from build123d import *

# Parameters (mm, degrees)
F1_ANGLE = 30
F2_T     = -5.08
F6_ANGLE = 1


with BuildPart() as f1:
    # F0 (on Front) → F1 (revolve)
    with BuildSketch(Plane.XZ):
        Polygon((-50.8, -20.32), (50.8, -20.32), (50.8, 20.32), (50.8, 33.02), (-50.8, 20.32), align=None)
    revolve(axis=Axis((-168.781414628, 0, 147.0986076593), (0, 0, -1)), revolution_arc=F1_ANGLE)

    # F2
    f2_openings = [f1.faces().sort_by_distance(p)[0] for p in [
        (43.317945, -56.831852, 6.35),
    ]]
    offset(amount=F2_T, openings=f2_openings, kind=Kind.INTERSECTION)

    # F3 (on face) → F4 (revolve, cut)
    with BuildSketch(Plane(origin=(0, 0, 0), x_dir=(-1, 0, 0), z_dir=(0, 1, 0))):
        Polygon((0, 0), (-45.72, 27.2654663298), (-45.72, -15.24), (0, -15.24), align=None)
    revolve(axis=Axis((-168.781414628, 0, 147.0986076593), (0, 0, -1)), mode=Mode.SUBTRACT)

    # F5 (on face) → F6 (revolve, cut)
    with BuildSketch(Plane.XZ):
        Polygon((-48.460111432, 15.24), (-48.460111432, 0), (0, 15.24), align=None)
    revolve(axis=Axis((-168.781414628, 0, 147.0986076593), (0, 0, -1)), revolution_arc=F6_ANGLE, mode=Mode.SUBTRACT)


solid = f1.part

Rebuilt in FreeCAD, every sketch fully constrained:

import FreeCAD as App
import Part
import Sketcher
Q = App.Units.Quantity


def faces_at(feature, points):
    """Names of the faces that lie closest to the given points."""
    faces = feature.Shape.Faces
    near = lambda p: min(range(len(faces)), key=lambda i: faces[i].distToShape(Part.Vertex(*p))[0])
    return sorted({f"Face{near(p) + 1}" for p in points})


def add_polygon(sketch, points):
    """Adds a closed chain of lines whose ends are joined by coincident constraints."""
    first, n = sketch.GeometryCount, len(points)
    for a, b in zip(points, points[1:] + points[:1]):
        sketch.addGeometry(Part.LineSegment(App.Vector(*a, 0), App.Vector(*b, 0)), False)
    for i in range(n):
        sketch.addConstraint(Sketcher.Constraint("Coincident", first + i, 2, first + (i + 1) % n, 1))

doc = App.newDocument("Part")
body = doc.addObject("PartDesign::Body", "Body")

sketch1 = doc.addObject("Sketcher::SketchObject", "Sketch")
body.addObject(sketch1)
sketch1.AttachmentSupport = (doc.XZ_Plane, [""])
sketch1.MapMode = "FlatFace"
add_polygon(sketch1, [(-51, -20), (51, -20), (51, 33), (-51, 20)])
sketch1.addGeometry(Part.LineSegment(App.Vector(-169, 33, 0), App.Vector(-169, -20, 0)), True)
sketch1.addConstraint(Sketcher.Constraint("Horizontal", 0))
sketch1.addConstraint(Sketcher.Constraint("Vertical", 1))
sketch1.addConstraint(Sketcher.Constraint("Vertical", 3))
sketch1.addConstraint(Sketcher.Constraint("Vertical", 4))
sketch1.addConstraint(Sketcher.Constraint("Symmetric", 0, 2, 2, 2, -1, 1))
sketch1.addConstraint(Sketcher.Constraint("Horizontal", 1, 2, 4, 1))
sketch1.addConstraint(Sketcher.Constraint("Horizontal", 3, 2, 4, 2))
sketch1.addConstraint(Sketcher.Constraint("DistanceX", 0, 1, 0, 2, Q("4 in")))
sketch1.addConstraint(Sketcher.Constraint("DistanceY", 1, 1, 1, 2, Q("2.1 in")))
sketch1.addConstraint(Sketcher.Constraint("DistanceY", 3, 2, 3, 1, Q("1.6 in")))
sketch1.addConstraint(Sketcher.Constraint("DistanceX", 4, 1, -1, 1, Q("168.781415 mm")))
revolution = doc.addObject("PartDesign::Revolution", "Revolution")
body.addObject(revolution)
revolution.Profile = sketch1
revolution.ReferenceAxis = (sketch1, ["Axis0"])
revolution.Angle = 30
doc.recompute()

thickness = doc.addObject("PartDesign::Thickness", "Thickness")
body.addObject(thickness)
thickness.Base = (revolution, faces_at(revolution, [(43.318, -56.832, 6.35)]))
thickness.Value = Q("0.2 in")
thickness.Reversed = True
thickness.Join = "Intersection"

sketch2 = doc.addObject("Sketcher::SketchObject", "Sketch001")
body.addObject(sketch2)
sketch2.AttachmentSupport = (doc.XZ_Plane, [""])
sketch2.MapMode = "FlatFace"
add_polygon(sketch2, [(0, 0), (46, 27), (46, -15), (0, -15)])
sketch2.addGeometry(Part.LineSegment(App.Vector(-169, 27, 0), App.Vector(-169, -15, 0)), True)
sketch2.addConstraint(Sketcher.Constraint("Vertical", 1))
sketch2.addConstraint(Sketcher.Constraint("Horizontal", 2))
sketch2.addConstraint(Sketcher.Constraint("Vertical", 3))
sketch2.addConstraint(Sketcher.Constraint("Vertical", 4))
sketch2.addConstraint(Sketcher.Constraint("Coincident", 3, 2, -1, 1))
sketch2.addConstraint(Sketcher.Constraint("Horizontal", 0, 2, 4, 1))
sketch2.addConstraint(Sketcher.Constraint("Horizontal", 2, 2, 4, 2))
sketch2.addConstraint(Sketcher.Constraint("DistanceX", 2, 2, 2, 1, Q("1.8 in")))
sketch2.addConstraint(Sketcher.Constraint("DistanceY", 3, 1, 3, 2, Q("0.6 in")))
sketch2.addConstraint(Sketcher.Constraint("DistanceY", 1, 2, 1, 1, Q("42.505466 mm")))
sketch2.addConstraint(Sketcher.Constraint("DistanceX", 4, 1, -1, 1, Q("168.781415 mm")))
groove = doc.addObject("PartDesign::Groove", "Groove")
body.addObject(groove)
groove.Profile = sketch2
groove.ReferenceAxis = (sketch2, ["Axis0"])
groove.Angle = 360

sketch3 = doc.addObject("Sketcher::SketchObject", "Sketch002")
body.addObject(sketch3)
sketch3.AttachmentSupport = (doc.XZ_Plane, [""])
sketch3.MapMode = "FlatFace"
add_polygon(sketch3, [(-48, 15), (-48, 0), (0, 15)])
sketch3.addGeometry(Part.LineSegment(App.Vector(-169, 15, 0), App.Vector(-169, 0, 0)), True)
sketch3.addConstraint(Sketcher.Constraint("Vertical", 0))
sketch3.addConstraint(Sketcher.Constraint("Horizontal", 2))
sketch3.addConstraint(Sketcher.Constraint("Vertical", 3))
sketch3.addConstraint(Sketcher.Constraint("PointOnObject", 0, 2, -1))
sketch3.addConstraint(Sketcher.Constraint("PointOnObject", 1, 2, -2))
sketch3.addConstraint(Sketcher.Constraint("PointOnObject", 3, 2, -1))
sketch3.addConstraint(Sketcher.Constraint("Horizontal", 2, 2, 3, 1))
sketch3.addConstraint(Sketcher.Constraint("Distance", 1, Q("2 in")))
sketch3.addConstraint(Sketcher.Constraint("DistanceY", 0, 2, 0, 1, Q("0.6 in")))
sketch3.addConstraint(Sketcher.Constraint("DistanceX", 3, 1, -1, 1, Q("168.781415 mm")))
groove2 = doc.addObject("PartDesign::Groove", "Groove001")
body.addObject(groove2)
groove2.Profile = sketch3
groove2.ReferenceAxis = (sketch3, ["Axis0"])
groove2.Angle = 1

doc.recompute()
